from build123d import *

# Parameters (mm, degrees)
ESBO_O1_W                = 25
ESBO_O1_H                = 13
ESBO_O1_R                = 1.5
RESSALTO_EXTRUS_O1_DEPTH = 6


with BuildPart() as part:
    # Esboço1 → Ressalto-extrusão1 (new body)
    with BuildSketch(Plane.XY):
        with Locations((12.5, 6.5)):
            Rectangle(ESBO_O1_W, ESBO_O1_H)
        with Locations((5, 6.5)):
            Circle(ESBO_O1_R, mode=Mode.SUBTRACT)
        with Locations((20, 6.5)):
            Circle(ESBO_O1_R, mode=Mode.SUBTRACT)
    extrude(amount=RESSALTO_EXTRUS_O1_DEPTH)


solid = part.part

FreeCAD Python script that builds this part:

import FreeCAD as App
import Part
import Sketcher

V = App.Vector

doc = App.newDocument("Part")
params = doc.addObject("Spreadsheet::Sheet", "Params")
for row, (alias, value) in enumerate([
    ("sketch1_diameter", "3 mm"),
    ("sketch1_width", "25 mm"),
    ("sketch1_height", "13 mm"),
    ("pad1_length", "6 mm"),
], start=1):
    params.set(f"A{row}", alias)
    params.set(f"B{row}", "=" + value)
    params.setAlias(f"B{row}", alias)

body = doc.addObject("PartDesign::Body", "Body")

# Sketch on XY plane
sketch1 = doc.addObject("Sketcher::SketchObject", "Sketch")
body.addObject(sketch1)
sketch1.AttachmentSupport = (doc.XY_Plane, [""])
sketch1.MapMode = "FlatFace"
sketch1.addGeometry(Part.LineSegment(V(0, 13, 0), V(0, 0, 0)), False)
sketch1.addGeometry(Part.LineSegment(V(0, 0, 0), V(25, 0, 0)), False)
sketch1.addGeometry(Part.LineSegment(V(25, 0, 0), V(25, 13, 0)), False)
sketch1.addGeometry(Part.LineSegment(V(25, 13, 0), V(0, 13, 0)), False)
sketch1.addGeometry(Part.Circle(V(5, 6.5, 0), V(0, 0, 1), 1.5), False)
sketch1.addGeometry(Part.Circle(V(20, 6.5, 0), V(0, 0, 1), 1.5), False)
sketch1.addConstraint(Sketcher.Constraint("Coincident", 0, 2, 1, 1))
sketch1.addConstraint(Sketcher.Constraint("Coincident", 1, 2, 2, 1))
sketch1.addConstraint(Sketcher.Constraint("Coincident", 2, 2, 3, 1))
sketch1.addConstraint(Sketcher.Constraint("Coincident", 3, 2, 0, 1))
sketch1.addConstraint(Sketcher.Constraint("Vertical", 0))
sketch1.addConstraint(Sketcher.Constraint("Horizontal", 1))
sketch1.addConstraint(Sketcher.Constraint("Vertical", 2))
sketch1.addConstraint(Sketcher.Constraint("Horizontal", 3))
sketch1.addConstraint(Sketcher.Constraint("Coincident", 0, 2, -1, 1))
sketch1.addConstraint(Sketcher.Constraint("Equal", 4, 5))
sketch1.addConstraint(Sketcher.Constraint("Horizontal", 4, 3, 5, 3))
sketch1.addConstraint(Sketcher.Constraint("Diameter", 4, 3.0))
sketch1.addConstraint(Sketcher.Constraint("DistanceX", 1, 1, 1, 2, 25.0))
sketch1.addConstraint(Sketcher.Constraint("DistanceY", 0, 2, 0, 1, 13.0))
sketch1.addConstraint(Sketcher.Constraint("DistanceX", -1, 1, 4, 3, 5.0))
sketch1.addConstraint(Sketcher.Constraint("DistanceX", -1, 1, 5, 3, 20.0))
sketch1.addConstraint(Sketcher.Constraint("DistanceY", -1, 1, 4, 3, 6.5))
sketch1.setExpression("Constraints[11]", "Params.sketch1_diameter")
sketch1.setExpression("Constraints[12]", "Params.sketch1_width")
sketch1.setExpression("Constraints[13]", "Params.sketch1_height")
pad1 = doc.addObject("PartDesign::Pad", "Pad")
body.addObject(pad1)
pad1.Profile = sketch1
pad1.setExpression("Length", "Params.pad1_length")

doc.recompute()
